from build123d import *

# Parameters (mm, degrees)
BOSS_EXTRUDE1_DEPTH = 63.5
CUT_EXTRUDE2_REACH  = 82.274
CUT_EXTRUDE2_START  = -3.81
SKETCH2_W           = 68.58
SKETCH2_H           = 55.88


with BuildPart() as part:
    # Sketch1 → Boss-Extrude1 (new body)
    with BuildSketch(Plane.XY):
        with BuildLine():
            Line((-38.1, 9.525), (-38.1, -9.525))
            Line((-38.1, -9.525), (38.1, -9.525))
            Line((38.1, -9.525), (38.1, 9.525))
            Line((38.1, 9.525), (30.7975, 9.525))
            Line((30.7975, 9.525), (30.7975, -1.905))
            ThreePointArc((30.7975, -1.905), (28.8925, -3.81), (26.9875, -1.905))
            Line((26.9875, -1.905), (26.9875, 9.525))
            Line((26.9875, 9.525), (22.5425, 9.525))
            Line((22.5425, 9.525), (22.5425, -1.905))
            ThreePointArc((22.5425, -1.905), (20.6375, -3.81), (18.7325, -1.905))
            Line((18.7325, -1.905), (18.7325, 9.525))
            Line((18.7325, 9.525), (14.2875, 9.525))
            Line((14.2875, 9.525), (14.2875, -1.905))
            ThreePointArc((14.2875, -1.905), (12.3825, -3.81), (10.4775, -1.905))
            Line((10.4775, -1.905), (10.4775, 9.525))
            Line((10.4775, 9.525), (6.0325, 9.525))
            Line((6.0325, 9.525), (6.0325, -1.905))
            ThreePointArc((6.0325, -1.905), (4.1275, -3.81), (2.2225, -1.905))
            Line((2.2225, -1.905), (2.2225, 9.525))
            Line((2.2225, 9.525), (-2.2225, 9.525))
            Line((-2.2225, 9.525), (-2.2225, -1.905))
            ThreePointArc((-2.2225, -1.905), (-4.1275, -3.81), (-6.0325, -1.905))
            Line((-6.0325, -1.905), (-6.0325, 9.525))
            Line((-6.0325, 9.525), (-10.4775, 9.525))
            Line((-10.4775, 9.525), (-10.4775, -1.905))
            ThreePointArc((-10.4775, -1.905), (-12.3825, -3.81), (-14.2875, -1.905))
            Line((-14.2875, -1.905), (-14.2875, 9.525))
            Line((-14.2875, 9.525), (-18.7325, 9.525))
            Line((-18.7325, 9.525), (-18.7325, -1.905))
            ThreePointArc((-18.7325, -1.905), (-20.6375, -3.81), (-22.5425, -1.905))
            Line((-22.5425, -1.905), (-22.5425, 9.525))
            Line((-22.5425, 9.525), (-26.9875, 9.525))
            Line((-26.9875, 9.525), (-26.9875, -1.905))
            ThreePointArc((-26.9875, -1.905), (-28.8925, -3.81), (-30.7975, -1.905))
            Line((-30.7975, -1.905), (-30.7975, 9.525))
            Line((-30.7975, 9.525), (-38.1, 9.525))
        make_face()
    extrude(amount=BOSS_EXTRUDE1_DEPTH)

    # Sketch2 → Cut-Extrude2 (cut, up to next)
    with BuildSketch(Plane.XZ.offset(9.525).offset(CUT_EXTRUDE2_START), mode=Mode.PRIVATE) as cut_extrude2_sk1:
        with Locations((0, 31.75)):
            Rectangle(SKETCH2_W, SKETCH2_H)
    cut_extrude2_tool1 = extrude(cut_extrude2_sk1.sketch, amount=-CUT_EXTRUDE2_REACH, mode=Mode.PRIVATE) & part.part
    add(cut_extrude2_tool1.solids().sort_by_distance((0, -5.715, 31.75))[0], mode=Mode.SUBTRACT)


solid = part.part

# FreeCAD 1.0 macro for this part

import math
import FreeCAD as App
import Part
import Sketcher
Q = App.Units.Quantity

doc = App.newDocument("Part")
body = doc.addObject("PartDesign::Body", "Body")

sketch1 = doc.addObject("Sketcher::SketchObject", "Sketch")
body.addObject(sketch1)
sketch1.AttachmentSupport = (doc.XY_Plane, [""])
sketch1.MapMode = "FlatFace"
sketch1.addGeometry([
    Part.LineSegment(App.Vector(-38.1, 9.5, 0), App.Vector(-38.1, -9.5, 0)),
    Part.LineSegment(App.Vector(-38.1, -9.5, 0), App.Vector(38.1, -9.5, 0)),
    Part.LineSegment(App.Vector(38.1, -9.5, 0), App.Vector(38.1, 9.5, 0)),
    Part.LineSegment(App.Vector(38.1, 9.5, 0), App.Vector(30.8, 9.5, 0)),
    Part.LineSegment(App.Vector(30.8, 9.5, 0), App.Vector(30.8, -1.9, 0)),
    Part.ArcOfCircle(Part.Circle(App.Vector(28.9, -1.9, 0), App.Vector(0, 0, 1), 1.9), math.radians(180), math.radians(360)),
    Part.LineSegment(App.Vector(27, -1.9, 0), App.Vector(27, 9.5, 0)),
    Part.LineSegment(App.Vector(27, 9.5, 0), App.Vector(22.5, 9.5, 0)),
    Part.LineSegment(App.Vector(22.5, 9.5, 0), App.Vector(22.5, -1.9, 0)),
    Part.ArcOfCircle(Part.Circle(App.Vector(20.6, -1.9, 0), App.Vector(0, 0, 1), 1.9), math.radians(180), math.radians(360)),
    Part.LineSegment(App.Vector(18.7, -1.9, 0), App.Vector(18.7, 9.5, 0)),
    Part.LineSegment(App.Vector(18.7, 9.5, 0), App.Vector(14.3, 9.5, 0)),
    Part.LineSegment(App.Vector(14.3, 9.5, 0), App.Vector(14.3, -1.9, 0)),
    Part.ArcOfCircle(Part.Circle(App.Vector(12.4, -1.9, 0), App.Vector(0, 0, 1), 1.9), math.radians(180), math.radians(360)),
    Part.LineSegment(App.Vector(10.5, -1.9, 0), App.Vector(10.5, 9.5, 0)),
    Part.LineSegment(App.Vector(10.5, 9.5, 0), App.Vector(6, 9.5, 0)),
    Part.LineSegment(App.Vector(6, 9.5, 0), App.Vector(6, -1.9, 0)),
    Part.ArcOfCircle(Part.Circle(App.Vector(4.1, -1.9, 0), App.Vector(0, 0, 1), 1.9), math.radians(180), math.radians(360)),
    Part.LineSegment(App.Vector(2.2, -1.9, 0), App.Vector(2.2, 9.5, 0)),
    Part.LineSegment(App.Vector(2.2, 9.5, 0), App.Vector(-2.2, 9.5, 0)),
    Part.LineSegment(App.Vector(-2.2, 9.5, 0), App.Vector(-2.2, -1.9, 0)),
    Part.ArcOfCircle(Part.Circle(App.Vector(-4.1, -1.9, 0), App.Vector(0, 0, 1), 1.9), math.radians(180), math.radians(360)),
    Part.LineSegment(App.Vector(-6, -1.9, 0), App.Vector(-6, 9.5, 0)),
    Part.LineSegment(App.Vector(-6, 9.5, 0), App.Vector(-10.5, 9.5, 0)),
    Part.LineSegment(App.Vector(-10.5, 9.5, 0), App.Vector(-10.5, -1.9, 0)),
    Part.ArcOfCircle(Part.Circle(App.Vector(-12.4, -1.9, 0), App.Vector(0, 0, 1), 1.9), math.radians(180), math.radians(360)),
    Part.LineSegment(App.Vector(-14.3, -1.9, 0), App.Vector(-14.3, 9.5, 0)),
    Part.LineSegment(App.Vector(-14.3, 9.5, 0), App.Vector(-18.7, 9.5, 0)),
    Part.LineSegment(App.Vector(-18.7, 9.5, 0), App.Vector(-18.7, -1.9, 0)),
    Part.ArcOfCircle(Part.Circle(App.Vector(-20.6, -1.9, 0), App.Vector(0, 0, 1), 1.9), math.radians(180), math.radians(360)),
    Part.LineSegment(App.Vector(-22.5, -1.9, 0), App.Vector(-22.5, 9.5, 0)),
    Part.LineSegment(App.Vector(-22.5, 9.5, 0), App.Vector(-27, 9.5, 0)),
    Part.LineSegment(App.Vector(-27, 9.5, 0), App.Vector(-27, -1.9, 0)),
    Part.ArcOfCircle(Part.Circle(App.Vector(-28.9, -1.9, 0), App.Vector(0, 0, 1), 1.9), math.radians(180), math.radians(360)),
    Part.LineSegment(App.Vector(-30.8, -1.9, 0), App.Vector(-30.8, 9.5, 0)),
    Part.LineSegment(App.Vector(-30.8, 9.5, 0), App.Vector(-38.1, 9.5, 0)),
], False)
sketch1.addConstraint([
    Sketcher.Constraint("Coincident", 0, 2, 1, 1),
    Sketcher.Constraint("Coincident", 1, 2, 2, 1),
    Sketcher.Constraint("Coincident", 2, 2, 3, 1),
    Sketcher.Constraint("Coincident", 3, 2, 4, 1),
    Sketcher.Constraint("Tangent", 4, 2, 5, 2),
    Sketcher.Constraint("Tangent", 5, 1, 6, 1),
    Sketcher.Constraint("Coincident", 6, 2, 7, 1),
    Sketcher.Constraint("Coincident", 7, 2, 8, 1),
    Sketcher.Constraint("Tangent", 8, 2, 9, 2),
    Sketcher.Constraint("Tangent", 9, 1, 10, 1),
    Sketcher.Constraint("Coincident", 10, 2, 11, 1),
    Sketcher.Constraint("Coincident", 11, 2, 12, 1),
    Sketcher.Constraint("Tangent", 12, 2, 13, 2),
    Sketcher.Constraint("Tangent", 13, 1, 14, 1),
    Sketcher.Constraint("Coincident", 14, 2, 15, 1),
    Sketcher.Constraint("Coincident", 15, 2, 16, 1),
    Sketcher.Constraint("Tangent", 16, 2, 17, 2),
    Sketcher.Constraint("Tangent", 17, 1, 18, 1),
    Sketcher.Constraint("Coincident", 18, 2, 19, 1),
    Sketcher.Constraint("Coincident", 19, 2, 20, 1),
    Sketcher.Constraint("Tangent", 20, 2, 21, 2),
    Sketcher.Constraint("Tangent", 21, 1, 22, 1),
    Sketcher.Constraint("Coincident", 22, 2, 23, 1),
    Sketcher.Constraint("Coincident", 23, 2, 24, 1),
    Sketcher.Constraint("Tangent", 24, 2, 25, 2),
    Sketcher.Constraint("Tangent", 25, 1, 26, 1),
    Sketcher.Constraint("Coincident", 26, 2, 27, 1),
    Sketcher.Constraint("Coincident", 27, 2, 28, 1),
    Sketcher.Constraint("Tangent", 28, 2, 29, 2),
    Sketcher.Constraint("Tangent", 29, 1, 30, 1),
    Sketcher.Constraint("Coincident", 30, 2, 31, 1),
    Sketcher.Constraint("Coincident", 31, 2, 32, 1),
    Sketcher.Constraint("Tangent", 32, 2, 33, 2),
    Sketcher.Constraint("Tangent", 33, 1, 34, 1),
    Sketcher.Constraint("Coincident", 34, 2, 35, 1),
    Sketcher.Constraint("Coincident", 35, 2, 0, 1),
    Sketcher.Constraint("Vertical", 0),
    Sketcher.Constraint("Horizontal", 1),
    Sketcher.Constraint("Vertical", 2),
    Sketcher.Constraint("Horizontal", 3),
    Sketcher.Constraint("Vertical", 4),
    Sketcher.Constraint("Vertical", 6),
    Sketcher.Constraint("Horizontal", 7),
    Sketcher.Constraint("Vertical", 8),
    Sketcher.Constraint("Vertical", 10),
    Sketcher.Constraint("Horizontal", 11),
    Sketcher.Constraint("Vertical", 12),
    Sketcher.Constraint("Vertical", 14),
    Sketcher.Constraint("Horizontal", 15),
    Sketcher.Constraint("Vertical", 16),
    Sketcher.Constraint("Vertical", 18),
    Sketcher.Constraint("Horizontal", 19),
    Sketcher.Constraint("Vertical", 20),
    Sketcher.Constraint("Vertical", 22),
    Sketcher.Constraint("Horizontal", 23),
    Sketcher.Constraint("Vertical", 24),
    Sketcher.Constraint("Vertical", 26),
    Sketcher.Constraint("Horizontal", 27),
    Sketcher.Constraint("Vertical", 28),
    Sketcher.Constraint("Vertical", 30),
    Sketcher.Constraint("Horizontal", 31),
    Sketcher.Constraint("Vertical", 32),
    Sketcher.Constraint("Vertical", 34),
    Sketcher.Constraint("Horizontal", 35),
    Sketcher.Constraint("Equal", 5, 9),
    Sketcher.Constraint("Equal", 9, 13),
    Sketcher.Constraint("Equal", 13, 17),
    Sketcher.Constraint("Equal", 17, 21),
    Sketcher.Constraint("Equal", 21, 25),
    Sketcher.Constraint("Equal", 25, 29),
    Sketcher.Constraint("Equal", 29, 33),
    Sketcher.Constraint("Symmetric", 0, 2, 2, 2, -1, 1),
    Sketcher.Constraint("Symmetric", 17, 3, 21, 3, -2),
    Sketcher.Constraint("Symmetric", 13, 3, 25, 3, -2),
    Sketcher.Constraint("Symmetric", 9, 3, 29, 3, -2),
    Sketcher.Constraint("Symmetric", 5, 3, 33, 3, -2),
    Sketcher.Constraint("Horizontal", 5, 3, 9, 3),
    Sketcher.Constraint("Horizontal", 9, 3, 13, 3),
    Sketcher.Constraint("Horizontal", 13, 3, 17, 3),
    Sketcher.Constraint("Horizontal", 3, 2, 6, 2),
    Sketcher.Constraint("Horizontal", 7, 2, 10, 2),
    Sketcher.Constraint("Horizontal", 11, 2, 14, 2),
    Sketcher.Constraint("Horizontal", 15, 2, 18, 2),
    Sketcher.Constraint("Horizontal", 19, 2, 22, 2),
    Sketcher.Constraint("Horizontal", 23, 2, 26, 2),
    Sketcher.Constraint("Horizontal", 27, 2, 30, 2),
    Sketcher.Constraint("Horizontal", 31, 2, 34, 2),
    Sketcher.Constraint("Equal", 7, 11),
    Sketcher.Constraint("Equal", 11, 15),
    Sketcher.Constraint("Equal", 15, 19),
    Sketcher.Constraint("DistanceX", 1, 1, 1, 2, Q("3 in")),
    Sketcher.Constraint("Radius", 5, Q("0.075 in")),
    Sketcher.Constraint("DistanceY", 0, 2, 0, 1, Q("0.75 in")),
    Sketcher.Constraint("DistanceY", 4, 2, 4, 1, Q("0.45 in")),
    Sketcher.Constraint("DistanceX", 21, 3, 5, 3, Q("1.3 in")),
])
pad1 = doc.addObject("PartDesign::Pad", "Pad")
body.addObject(pad1)
pad1.Profile = sketch1
pad1.Length = Q("2.5 in")

sketch2 = doc.addObject("Sketcher::SketchObject", "Sketch001")
body.addObject(sketch2)
sketch2.AttachmentSupport = (doc.XZ_Plane, [""])
sketch2.MapMode = "FlatFace"
sketch2.AttachmentOffset = App.Placement(App.Vector(0, 0, 0.225 * 25.4), App.Rotation())
sketch2.addGeometry([
    Part.LineSegment(App.Vector(-34, 60, 0), App.Vector(-34, 4, 0)),
    Part.LineSegment(App.Vector(-34, 4, 0), App.Vector(34, 4, 0)),
    Part.LineSegment(App.Vector(34, 4, 0), App.Vector(34, 60, 0)),
    Part.LineSegment(App.Vector(34, 60, 0), App.Vector(-34, 60, 0)),
], False)
sketch2.addConstraint([
    Sketcher.Constraint("Coincident", 0, 2, 1, 1),
    Sketcher.Constraint("Coincident", 1, 2, 2, 1),
    Sketcher.Constraint("Coincident", 2, 2, 3, 1),
    Sketcher.Constraint("Coincident", 3, 2, 0, 1),
    Sketcher.Constraint("Vertical", 0),
    Sketcher.Constraint("Horizontal", 1),
    Sketcher.Constraint("Vertical", 2),
    Sketcher.Constraint("Horizontal", 3),
    Sketcher.Constraint("DistanceX", 1, 1, 1, 2, Q("2.7 in")),
    Sketcher.Constraint("DistanceY", 0, 2, 0, 1, Q("2.2 in")),
    Sketcher.Constraint("DistanceX", 0, 2, -1, 1, Q("1.35 in")),
    Sketcher.Constraint("DistanceY", -1, 1, 0, 2, Q("0.15 in")),
])
pocket1 = doc.addObject("PartDesign::Pocket", "Pocket")
body.addObject(pocket1)
pocket1.Profile = sketch2
pocket1.Type = "UpToFirst"

doc.recompute()
